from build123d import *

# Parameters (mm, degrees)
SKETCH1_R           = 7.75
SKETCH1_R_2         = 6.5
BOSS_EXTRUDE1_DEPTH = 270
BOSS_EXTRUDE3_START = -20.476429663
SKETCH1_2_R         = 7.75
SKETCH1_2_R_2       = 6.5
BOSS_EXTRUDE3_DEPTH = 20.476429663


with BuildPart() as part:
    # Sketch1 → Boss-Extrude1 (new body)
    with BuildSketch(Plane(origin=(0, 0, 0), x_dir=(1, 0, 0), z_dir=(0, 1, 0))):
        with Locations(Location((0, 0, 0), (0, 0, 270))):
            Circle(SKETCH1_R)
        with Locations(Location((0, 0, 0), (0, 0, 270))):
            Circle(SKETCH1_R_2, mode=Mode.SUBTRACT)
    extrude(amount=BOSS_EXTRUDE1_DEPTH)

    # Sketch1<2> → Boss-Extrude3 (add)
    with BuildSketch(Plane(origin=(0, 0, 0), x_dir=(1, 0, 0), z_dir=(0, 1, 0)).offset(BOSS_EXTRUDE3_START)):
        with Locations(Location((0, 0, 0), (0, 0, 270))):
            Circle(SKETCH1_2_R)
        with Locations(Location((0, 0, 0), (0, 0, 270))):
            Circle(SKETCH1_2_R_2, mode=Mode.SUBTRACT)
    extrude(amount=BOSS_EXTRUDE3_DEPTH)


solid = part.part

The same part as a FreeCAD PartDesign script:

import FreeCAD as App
import Part
import Sketcher

doc = App.newDocument("Part")
params = doc.addObject("Spreadsheet::Sheet", "Params")
for row, (alias, value) in enumerate([
    ("sketch1_diameter", "13 mm"),
    ("sketch1_diameter2", "15.5 mm"),
    ("pad1_length", "270 mm"),
    ("sketch2_diameter", "13 mm"),
    ("sketch2_diameter2", "15.5 mm"),
    ("pad2_length", "20.47643 mm"),
], start=1):
    params.set(f"A{row}", alias)
    params.set(f"B{row}", "=" + value)
    params.setAlias(f"B{row}", alias)

body = doc.addObject("PartDesign::Body", "Body")

sketch1 = doc.addObject("Sketcher::SketchObject", "Sketch")
body.addObject(sketch1)
sketch1.AttachmentSupport = (doc.XZ_Plane, [""])
sketch1.MapMode = "FlatFace"
sketch1.addGeometry(Part.Circle(App.Vector(0, 0, 0), App.Vector(0, 0, 1), 8), False)
sketch1.addGeometry(Part.Circle(App.Vector(0, 0, 0), App.Vector(0, 0, 1), 6), False)
sketch1.addConstraint(Sketcher.Constraint("Coincident", 0, 3, -1, 1))
sketch1.addConstraint(Sketcher.Constraint("Coincident", 1, 3, -1, 1))
sketch1.addConstraint(Sketcher.Constraint("Diameter", 1, 13.0))
sketch1.addConstraint(Sketcher.Constraint("Diameter", 0, 15.5))
sketch1.setExpression("Constraints[2]", "Params.sketch1_diameter")
sketch1.setExpression("Constraints[3]", "Params.sketch1_diameter2")
pad1 = doc.addObject("PartDesign::Pad", "Pad")
body.addObject(pad1)
pad1.Profile = sketch1
pad1.setExpression("Length", "Params.pad1_length")
pad1.Reversed = True

sketch2 = doc.addObject("Sketcher::SketchObject", "Sketch001")
body.addObject(sketch2)
sketch2.AttachmentSupport = (doc.XZ_Plane, [""])
sketch2.MapMode = "FlatFace"
sketch2.AttachmentOffset = App.Placement(App.Vector(0, 0, 20.47643), App.Rotation())
sketch2.addGeometry(Part.Circle(App.Vector(0, 0, 0), App.Vector(0, 0, 1), 8), False)
sketch2.addGeometry(Part.Circle(App.Vector(0, 0, 0), App.Vector(0, 0, 1), 6), False)
sketch2.addConstraint(Sketcher.Constraint("Coincident", 0, 3, -1, 1))
sketch2.addConstraint(Sketcher.Constraint("Coincident", 1, 3, -1, 1))
sketch2.addConstraint(Sketcher.Constraint("Diameter", 1, 13.0))
sketch2.addConstraint(Sketcher.Constraint("Diameter", 0, 15.5))
sketch2.setExpression("Constraints[2]", "Params.sketch2_diameter")
sketch2.setExpression("Constraints[3]", "Params.sketch2_diameter2")
pad2 = doc.addObject("PartDesign::Pad", "Pad001")
body.addObject(pad2)
pad2.Profile = sketch2
pad2.setExpression("Length", "Params.pad2_length")
pad2.Reversed = True

doc.recompute()
